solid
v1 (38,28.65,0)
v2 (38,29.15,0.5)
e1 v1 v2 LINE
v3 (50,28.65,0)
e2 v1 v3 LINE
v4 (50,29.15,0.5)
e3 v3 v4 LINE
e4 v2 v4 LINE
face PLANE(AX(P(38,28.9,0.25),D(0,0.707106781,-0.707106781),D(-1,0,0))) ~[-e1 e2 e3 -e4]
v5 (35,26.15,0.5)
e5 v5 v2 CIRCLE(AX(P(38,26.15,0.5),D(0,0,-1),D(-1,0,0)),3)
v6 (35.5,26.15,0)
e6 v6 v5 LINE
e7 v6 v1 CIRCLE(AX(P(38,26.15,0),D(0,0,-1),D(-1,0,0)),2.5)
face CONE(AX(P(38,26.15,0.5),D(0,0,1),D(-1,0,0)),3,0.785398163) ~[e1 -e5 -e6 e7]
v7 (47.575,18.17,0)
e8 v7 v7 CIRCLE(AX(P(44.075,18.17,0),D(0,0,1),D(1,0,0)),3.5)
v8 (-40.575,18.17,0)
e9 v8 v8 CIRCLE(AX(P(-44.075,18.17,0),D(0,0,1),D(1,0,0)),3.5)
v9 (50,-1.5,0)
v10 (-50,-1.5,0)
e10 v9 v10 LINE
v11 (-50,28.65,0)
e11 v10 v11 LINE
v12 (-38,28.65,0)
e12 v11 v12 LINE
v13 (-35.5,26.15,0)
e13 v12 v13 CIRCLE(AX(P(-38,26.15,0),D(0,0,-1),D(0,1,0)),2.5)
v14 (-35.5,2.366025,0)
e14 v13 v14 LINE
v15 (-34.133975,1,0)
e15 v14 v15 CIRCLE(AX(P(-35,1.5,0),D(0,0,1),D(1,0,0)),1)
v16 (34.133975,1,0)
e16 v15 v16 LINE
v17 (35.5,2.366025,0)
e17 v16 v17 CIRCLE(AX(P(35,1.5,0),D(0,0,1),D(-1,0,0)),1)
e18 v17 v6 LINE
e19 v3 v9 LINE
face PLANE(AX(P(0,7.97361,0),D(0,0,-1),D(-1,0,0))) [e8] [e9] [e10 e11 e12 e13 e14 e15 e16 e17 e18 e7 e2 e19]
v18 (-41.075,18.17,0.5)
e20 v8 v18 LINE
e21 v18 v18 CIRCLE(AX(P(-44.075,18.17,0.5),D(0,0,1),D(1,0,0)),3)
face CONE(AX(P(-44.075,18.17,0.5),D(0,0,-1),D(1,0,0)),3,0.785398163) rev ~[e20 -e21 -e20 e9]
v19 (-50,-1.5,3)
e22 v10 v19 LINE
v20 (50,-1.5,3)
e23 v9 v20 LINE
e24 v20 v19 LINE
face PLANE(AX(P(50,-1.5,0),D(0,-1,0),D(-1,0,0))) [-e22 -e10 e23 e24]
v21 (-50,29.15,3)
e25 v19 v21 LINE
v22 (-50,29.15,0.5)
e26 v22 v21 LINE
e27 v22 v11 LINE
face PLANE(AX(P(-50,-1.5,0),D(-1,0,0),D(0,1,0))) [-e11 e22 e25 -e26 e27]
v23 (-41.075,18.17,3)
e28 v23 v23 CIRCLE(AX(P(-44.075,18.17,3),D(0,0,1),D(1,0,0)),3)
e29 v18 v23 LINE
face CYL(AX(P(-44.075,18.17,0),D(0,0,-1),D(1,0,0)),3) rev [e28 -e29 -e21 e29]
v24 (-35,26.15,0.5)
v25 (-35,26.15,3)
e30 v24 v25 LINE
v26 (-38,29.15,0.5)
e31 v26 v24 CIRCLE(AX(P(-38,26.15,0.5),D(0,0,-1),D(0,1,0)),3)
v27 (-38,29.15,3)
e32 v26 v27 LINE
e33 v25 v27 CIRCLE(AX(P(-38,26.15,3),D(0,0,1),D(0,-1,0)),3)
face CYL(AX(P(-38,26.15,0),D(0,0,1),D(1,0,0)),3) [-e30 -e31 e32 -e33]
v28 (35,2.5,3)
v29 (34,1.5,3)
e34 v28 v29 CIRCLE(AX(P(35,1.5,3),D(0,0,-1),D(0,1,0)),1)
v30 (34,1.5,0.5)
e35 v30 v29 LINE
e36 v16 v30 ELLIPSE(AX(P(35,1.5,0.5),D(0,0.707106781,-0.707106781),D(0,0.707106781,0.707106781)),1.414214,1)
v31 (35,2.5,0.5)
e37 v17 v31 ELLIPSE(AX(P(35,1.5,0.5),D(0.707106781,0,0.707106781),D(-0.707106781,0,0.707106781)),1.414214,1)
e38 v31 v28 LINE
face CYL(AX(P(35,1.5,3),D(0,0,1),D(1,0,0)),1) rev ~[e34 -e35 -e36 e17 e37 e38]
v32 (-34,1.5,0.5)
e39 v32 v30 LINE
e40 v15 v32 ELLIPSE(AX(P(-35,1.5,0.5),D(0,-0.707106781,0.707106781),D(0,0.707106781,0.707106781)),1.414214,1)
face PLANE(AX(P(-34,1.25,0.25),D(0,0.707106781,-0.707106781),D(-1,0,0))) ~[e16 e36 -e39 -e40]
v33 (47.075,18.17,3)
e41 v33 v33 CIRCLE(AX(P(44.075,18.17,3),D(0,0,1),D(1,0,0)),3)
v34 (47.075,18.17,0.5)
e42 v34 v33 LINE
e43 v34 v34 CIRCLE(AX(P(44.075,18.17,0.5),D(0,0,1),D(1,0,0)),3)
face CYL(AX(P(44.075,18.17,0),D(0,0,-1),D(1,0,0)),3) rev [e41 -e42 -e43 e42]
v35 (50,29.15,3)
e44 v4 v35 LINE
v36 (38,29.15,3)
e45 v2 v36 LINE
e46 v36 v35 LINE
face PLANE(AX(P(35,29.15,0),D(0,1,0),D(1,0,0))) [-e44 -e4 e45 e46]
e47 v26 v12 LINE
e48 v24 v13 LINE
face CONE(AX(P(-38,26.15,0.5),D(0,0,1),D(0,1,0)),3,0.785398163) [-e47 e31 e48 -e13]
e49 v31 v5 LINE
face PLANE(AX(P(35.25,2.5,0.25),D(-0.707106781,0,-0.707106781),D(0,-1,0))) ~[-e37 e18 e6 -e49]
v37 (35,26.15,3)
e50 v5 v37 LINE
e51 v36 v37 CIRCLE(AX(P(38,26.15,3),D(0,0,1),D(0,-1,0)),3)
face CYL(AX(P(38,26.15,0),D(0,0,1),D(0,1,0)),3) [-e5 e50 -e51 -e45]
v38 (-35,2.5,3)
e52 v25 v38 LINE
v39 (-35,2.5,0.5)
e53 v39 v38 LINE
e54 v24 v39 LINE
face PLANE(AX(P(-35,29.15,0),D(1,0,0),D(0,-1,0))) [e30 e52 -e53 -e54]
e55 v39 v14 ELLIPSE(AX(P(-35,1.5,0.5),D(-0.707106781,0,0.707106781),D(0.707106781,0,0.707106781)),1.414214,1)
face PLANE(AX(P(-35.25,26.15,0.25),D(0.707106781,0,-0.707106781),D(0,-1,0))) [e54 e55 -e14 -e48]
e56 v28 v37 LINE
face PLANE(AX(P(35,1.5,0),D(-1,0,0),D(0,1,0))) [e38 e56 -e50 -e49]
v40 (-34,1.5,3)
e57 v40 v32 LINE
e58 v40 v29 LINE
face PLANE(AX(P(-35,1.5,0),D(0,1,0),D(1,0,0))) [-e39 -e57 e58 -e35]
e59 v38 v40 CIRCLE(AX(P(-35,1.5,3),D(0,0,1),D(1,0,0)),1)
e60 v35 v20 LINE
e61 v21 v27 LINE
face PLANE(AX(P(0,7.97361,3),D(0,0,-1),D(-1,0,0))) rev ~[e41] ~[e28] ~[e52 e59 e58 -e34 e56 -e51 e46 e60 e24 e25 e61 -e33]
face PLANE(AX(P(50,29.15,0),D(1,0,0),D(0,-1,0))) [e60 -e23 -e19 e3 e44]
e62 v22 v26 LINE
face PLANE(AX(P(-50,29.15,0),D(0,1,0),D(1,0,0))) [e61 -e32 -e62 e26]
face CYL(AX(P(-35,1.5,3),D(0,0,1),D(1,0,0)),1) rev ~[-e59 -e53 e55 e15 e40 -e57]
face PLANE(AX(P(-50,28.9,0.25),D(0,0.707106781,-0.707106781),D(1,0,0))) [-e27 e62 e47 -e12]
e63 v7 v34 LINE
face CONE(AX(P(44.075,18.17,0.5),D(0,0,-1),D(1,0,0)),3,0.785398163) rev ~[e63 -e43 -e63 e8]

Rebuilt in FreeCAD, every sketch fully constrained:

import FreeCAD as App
import Part
import Sketcher
from FreeCAD import Vector


def edges_at(feature, points):
    """Names of the edges that pass closest to the given points."""
    edges = feature.Shape.Edges
    near = lambda p: min(range(len(edges)), key=lambda i: edges[i].distToShape(Part.Vertex(*p))[0])
    return sorted({f"Edge{near(p) + 1}" for p in points})


def add_polygon(sketch, points):
    """Adds a closed chain of lines whose ends are joined by coincident constraints."""
    first, n = sketch.GeometryCount, len(points)
    for a, b in zip(points, points[1:] + points[:1]):
        sketch.addGeometry(Part.LineSegment(App.Vector(*a, 0), App.Vector(*b, 0)), False)
    for i in range(n):
        sketch.addConstraint(Sketcher.Constraint("Coincident", first + i, 2, first + (i + 1) % n, 1))

doc = App.newDocument("Part")
body = doc.addObject("PartDesign::Body", "Body")

sketch1 = body.newObject("Sketcher::SketchObject", "Sketch")
sketch1.AttachmentSupport = (doc.getObject("XY_Plane"), [""])
sketch1.MapMode = "FlatFace"
add_polygon(sketch1, [(-35, 1.5), (-35, 29.15), (-50, 29.15), (-50, -1.5), (50, -1.5), (50, 29.15), (35, 29.15), (35, 1.5)])
sketch1.addGeometry(Part.Circle(Vector(44.075, 18.17, 0), Vector(0, 0, 1), 3), False)
sketch1.addGeometry(Part.Circle(Vector(-44.075, 18.17, 0), Vector(0, 0, 1), 3), False)
sketch1.addConstraint([
    Sketcher.Constraint("Vertical", 0),
    Sketcher.Constraint("Horizontal", 1),
    Sketcher.Constraint("Vertical", 2),
    Sketcher.Constraint("Horizontal", 3),
    Sketcher.Constraint("Vertical", 4),
    Sketcher.Constraint("Horizontal", 5),
    Sketcher.Constraint("Vertical", 6),
    Sketcher.Constraint("Horizontal", 7),
    Sketcher.Constraint("Equal", 8, 9),
    Sketcher.Constraint("Symmetric", 8, 3, 9, 3, -2),
    Sketcher.Constraint("Symmetric", 1, 2, 4, 2, -2),
    Sketcher.Constraint("Equal", 1, 5),
    Sketcher.Constraint("Diameter", 8, 6.0),
    Sketcher.Constraint("DistanceX", 1, 2, 1, 1, 15.0),
    Sketcher.Constraint("DistanceX", 3, 1, 3, 2, 100.0),
    Sketcher.Constraint("DistanceY", 3, 2, 6, 2, 3.0),
    Sketcher.Constraint("DistanceY", 0, 1, 0, 2, 27.65),
    Sketcher.Constraint("DistanceY", 2, 2, -1, 1, 1.5),
    Sketcher.Constraint("DistanceY", -1, 1, 8, 3, 18.17),
    Sketcher.Constraint("DistanceX", 9, 3, 8, 3, 88.15),
])
pad1 = body.newObject("PartDesign::Pad", "Pad")
pad1.Profile = sketch1
pad1.Length = 3

sketch2 = body.newObject("Sketcher::SketchObject", "Sketch001")
sketch2.AttachmentSupport = (doc.getObject("XY_Plane"), [""])
sketch2.MapMode = "FlatFace"
sketch2.AttachmentOffset = App.Placement(Vector(0, 0, 3), App.Rotation())
sketch2.addGeometry([
    Part.Circle(Vector(-35, 1.5, 0), Vector(0, 0, 1), 1),
    Part.Circle(Vector(35, 1.5, 0), Vector(0, 0, 1), 1),
], False)
sketch2.addConstraint([
    Sketcher.Constraint("Equal", 0, 1),
    Sketcher.Constraint("Symmetric", 0, 3, 1, 3, -2),
    Sketcher.Constraint("Diameter", 0, 2.0),
    Sketcher.Constraint("DistanceX", 0, 3, -1, 1, 35.0),
    Sketcher.Constraint("DistanceY", -1, 1, 0, 3, 1.5),
])
pocket1 = body.newObject("PartDesign::Pocket", "Pocket")
pocket1.Profile = sketch2
pocket1.Type = "ThroughAll"
doc.recompute()

fillet = body.newObject("PartDesign::Fillet", "Fillet")
fillet.Base = (pocket1, edges_at(pocket1, [(-35, 29.15, 1.5), (35, 29.15, 1.5)]))
fillet.Radius = 3
doc.recompute()

chamfer = body.newObject("PartDesign::Chamfer", "Chamfer")
chamfer.Base = (fillet, edges_at(fillet, [
    (0, 1.5, 0),
    (-35, 14.325, 0),
    (35, 14.325, 0),
    (-35.879, 28.271, 0),
    (35.879, 28.271, 0),
    (-47.075, 18.17, 0),
    (41.075, 18.17, 0),
]))
chamfer.Size = 0.5

doc.recompute()
